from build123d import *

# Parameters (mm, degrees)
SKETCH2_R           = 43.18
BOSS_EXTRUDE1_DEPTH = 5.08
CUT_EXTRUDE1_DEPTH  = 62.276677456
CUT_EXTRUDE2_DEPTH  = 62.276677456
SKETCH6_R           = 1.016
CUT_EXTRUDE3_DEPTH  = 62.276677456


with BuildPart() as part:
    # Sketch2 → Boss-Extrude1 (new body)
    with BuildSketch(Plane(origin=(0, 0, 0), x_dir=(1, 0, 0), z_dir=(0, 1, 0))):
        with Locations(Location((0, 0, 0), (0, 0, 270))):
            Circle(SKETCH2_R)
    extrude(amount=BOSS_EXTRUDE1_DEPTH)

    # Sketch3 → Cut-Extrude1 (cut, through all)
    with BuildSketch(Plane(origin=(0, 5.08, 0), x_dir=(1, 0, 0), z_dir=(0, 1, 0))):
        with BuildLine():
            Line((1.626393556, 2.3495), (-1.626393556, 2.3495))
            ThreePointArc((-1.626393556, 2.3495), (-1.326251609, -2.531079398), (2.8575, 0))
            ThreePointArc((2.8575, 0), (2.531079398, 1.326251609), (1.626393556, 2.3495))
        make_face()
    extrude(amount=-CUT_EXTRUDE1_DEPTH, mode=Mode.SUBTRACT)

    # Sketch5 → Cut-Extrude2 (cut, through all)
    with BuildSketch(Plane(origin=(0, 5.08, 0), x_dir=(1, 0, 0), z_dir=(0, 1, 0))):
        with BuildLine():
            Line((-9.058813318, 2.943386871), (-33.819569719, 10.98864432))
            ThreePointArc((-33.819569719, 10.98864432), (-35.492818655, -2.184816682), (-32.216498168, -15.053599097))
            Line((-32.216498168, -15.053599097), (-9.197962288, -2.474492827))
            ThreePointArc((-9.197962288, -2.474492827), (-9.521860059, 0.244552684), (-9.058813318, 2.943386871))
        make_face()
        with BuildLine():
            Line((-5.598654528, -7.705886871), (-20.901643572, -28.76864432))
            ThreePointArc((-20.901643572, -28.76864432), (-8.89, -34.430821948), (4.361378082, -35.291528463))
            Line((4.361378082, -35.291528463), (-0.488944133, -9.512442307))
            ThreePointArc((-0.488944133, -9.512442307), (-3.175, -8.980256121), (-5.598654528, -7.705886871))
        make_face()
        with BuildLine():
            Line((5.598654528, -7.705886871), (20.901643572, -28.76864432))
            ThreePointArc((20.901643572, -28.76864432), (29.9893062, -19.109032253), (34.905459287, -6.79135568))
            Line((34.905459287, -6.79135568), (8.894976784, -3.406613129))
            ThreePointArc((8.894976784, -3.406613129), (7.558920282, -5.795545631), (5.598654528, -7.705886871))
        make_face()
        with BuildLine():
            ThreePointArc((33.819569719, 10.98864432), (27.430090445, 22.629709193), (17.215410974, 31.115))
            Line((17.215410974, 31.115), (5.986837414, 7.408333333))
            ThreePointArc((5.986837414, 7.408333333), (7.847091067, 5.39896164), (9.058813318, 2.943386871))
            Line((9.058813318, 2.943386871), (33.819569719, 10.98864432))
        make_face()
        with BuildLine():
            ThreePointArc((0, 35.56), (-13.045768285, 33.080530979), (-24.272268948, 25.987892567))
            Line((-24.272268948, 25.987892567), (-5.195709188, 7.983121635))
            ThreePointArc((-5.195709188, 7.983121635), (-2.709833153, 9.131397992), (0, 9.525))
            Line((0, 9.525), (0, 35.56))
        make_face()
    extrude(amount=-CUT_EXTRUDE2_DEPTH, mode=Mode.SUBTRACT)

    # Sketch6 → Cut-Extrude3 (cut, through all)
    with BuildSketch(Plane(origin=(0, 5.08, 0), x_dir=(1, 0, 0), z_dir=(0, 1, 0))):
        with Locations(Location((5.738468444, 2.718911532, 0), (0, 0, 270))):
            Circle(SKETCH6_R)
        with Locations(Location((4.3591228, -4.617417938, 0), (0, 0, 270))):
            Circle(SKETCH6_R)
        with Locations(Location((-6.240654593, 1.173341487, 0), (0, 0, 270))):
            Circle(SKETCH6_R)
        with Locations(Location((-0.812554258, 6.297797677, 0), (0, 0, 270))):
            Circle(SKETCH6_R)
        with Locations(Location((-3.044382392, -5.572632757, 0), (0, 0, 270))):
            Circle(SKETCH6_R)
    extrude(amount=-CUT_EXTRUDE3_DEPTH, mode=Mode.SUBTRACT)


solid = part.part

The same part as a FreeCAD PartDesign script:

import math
import FreeCAD as App
import Part
import Sketcher

V = App.Vector
Q = App.Units.Quantity

doc = App.newDocument("Part")
body = doc.addObject("PartDesign::Body", "Body")

# Sketch on XZ plane
sketch1 = doc.addObject("Sketcher::SketchObject", "Sketch")
body.addObject(sketch1)
sketch1.AttachmentSupport = (doc.XZ_Plane, [""])
sketch1.MapMode = "FlatFace"
sketch1.addGeometry(Part.Circle(V(0, 0, 0), V(0, 0, 1), 43), False)
sketch1.addConstraint(Sketcher.Constraint("Coincident", 0, 3, -1, 1))
sketch1.addConstraint(Sketcher.Constraint("Diameter", 0, Q("3.4 in")))
pad1 = doc.addObject("PartDesign::Pad", "Pad")
body.addObject(pad1)
pad1.Profile = sketch1
pad1.Length = Q("0.2 in")
pad1.Reversed = True

# Sketch on XZ plane
sketch2 = doc.addObject("Sketcher::SketchObject", "Sketch001")
body.addObject(sketch2)
sketch2.AttachmentSupport = (doc.XZ_Plane, [""])
sketch2.MapMode = "FlatFace"
sketch2.AttachmentOffset = App.Placement(V(0, 0, -0.2 * 25.4), App.Rotation())
sketch2.addGeometry(Part.LineSegment(V(1.6, -2.3, 0), V(-1.6, -2.3, 0)), False)
sketch2.addGeometry(Part.ArcOfCircle(Part.Circle(V(0, 0, 0), V(0, 0, 1), 2.9), math.radians(0), math.radians(235)), False)
sketch2.addGeometry(Part.ArcOfCircle(Part.Circle(V(0, 0, 0), V(0, 0, 1), 2.9), math.radians(-55), math.radians(0)), False)
sketch2.addConstraint(Sketcher.Constraint("Coincident", 0, 2, 1, 2))
sketch2.addConstraint(Sketcher.Constraint("Tangent", 1, 1, 2, 2))
sketch2.addConstraint(Sketcher.Constraint("Coincident", 2, 1, 0, 1))
sketch2.addConstraint(Sketcher.Constraint("Horizontal", 0))
sketch2.addConstraint(Sketcher.Constraint("Coincident", 1, 3, -1, 1))
sketch2.addConstraint(Sketcher.Constraint("Equal", 1, 2))
sketch2.addConstraint(Sketcher.Constraint("PointOnObject", 1, 1, -1))
sketch2.addConstraint(Sketcher.Constraint("Radius", 1, Q("0.1125 in")))
sketch2.addConstraint(Sketcher.Constraint("DistanceY", 0, 2, -1, 1, Q("0.0925 in")))
pocket1 = doc.addObject("PartDesign::Pocket", "Pocket")
body.addObject(pocket1)
pocket1.Profile = sketch2
pocket1.Type = "ThroughAll"
pocket1.Reversed = True

# Sketch on XZ plane
sketch3 = doc.addObject("Sketcher::SketchObject", "Sketch002")
body.addObject(sketch3)
sketch3.AttachmentSupport = (doc.XZ_Plane, [""])
sketch3.MapMode = "FlatFace"
sketch3.AttachmentOffset = App.Placement(V(0, 0, -0.2 * 25.4), App.Rotation())
sketch3.addGeometry(Part.LineSegment(V(-9, -3, 0), V(-34, -11, 0)), False)
sketch3.addGeometry(Part.ArcOfCircle(Part.Circle(V(0, 0, 0), V(0, 0, 1), 36), math.radians(155), math.radians(198)), False)
sketch3.addGeometry(Part.LineSegment(V(-32, 15, 0), V(-9, 2, 0)), False)
sketch3.addGeometry(Part.ArcOfCircle(Part.Circle(V(0, 0, 0), V(0, 0, 1), 10), math.radians(165), math.radians(198)), False)
sketch3.addGeometry(Part.LineSegment(V(-6, 8, 0), V(-21, 29, 0)), False)
sketch3.addGeometry(Part.ArcOfCircle(Part.Circle(V(0, 0, 0), V(0, 0, 1), 36), math.radians(83), math.radians(126)), False)
sketch3.addGeometry(Part.LineSegment(V(4, 35, 0), V(0, 10, 0)), False)
sketch3.addGeometry(Part.ArcOfCircle(Part.Circle(V(0, 0, 0), V(0, 0, 1), 10), math.radians(93), math.radians(126)), False)
sketch3.addGeometry(Part.LineSegment(V(6, 8, 0), V(21, 29, 0)), False)
sketch3.addGeometry(Part.ArcOfCircle(Part.Circle(V(0, 0, 0), V(0, 0, 1), 36), math.radians(11), math.radians(54)), False)
sketch3.addGeometry(Part.LineSegment(V(35, 7, 0), V(9, 3, 0)), False)
sketch3.addGeometry(Part.ArcOfCircle(Part.Circle(V(0, 0, 0), V(0, 0, 1), 10), math.radians(21), math.radians(54)), False)
sketch3.addGeometry(Part.ArcOfCircle(Part.Circle(V(0, 0, 0), V(0, 0, 1), 36), math.radians(-61), math.radians(-18)), False)
sketch3.addGeometry(Part.LineSegment(V(17, -31, 0), V(6, -7, 0)), False)
sketch3.addGeometry(Part.ArcOfCircle(Part.Circle(V(0, 0, 0), V(0, 0, 1), 10), math.radians(-51), math.radians(-18)), False)
sketch3.addGeometry(Part.LineSegment(V(9, -3, 0), V(34, -11, 0)), False)
sketch3.addGeometry(Part.ArcOfCircle(Part.Circle(V(0, 0, 0), V(0, 0, 1), 36), math.radians(-133), math.radians(-90)), False)
sketch3.addGeometry(Part.LineSegment(V(-24, -26, 0), V(-5, -8, 0)), False)
sketch3.addGeometry(Part.ArcOfCircle(Part.Circle(V(0, 0, 0), V(0, 0, 1), 10), math.radians(-123), math.radians(-90)), False)
sketch3.addGeometry(Part.LineSegment(V(0, -10, 0), V(0, -36, 0)), False)
sketch3.addConstraint(Sketcher.Constraint("Coincident", 0, 2, 1, 2))
sketch3.addConstraint(Sketcher.Constraint("Coincident", 1, 1, 2, 1))
sketch3.addConstraint(Sketcher.Constraint("Coincident", 2, 2, 3, 1))
sketch3.addConstraint(Sketcher.Constraint("Coincident", 3, 2, 0, 1))
sketch3.addConstraint(Sketcher.Constraint("Coincident", 4, 2, 5, 2))
sketch3.addConstraint(Sketcher.Constraint("Coincident", 5, 1, 6, 1))
sketch3.addConstraint(Sketcher.Constraint("Coincident", 6, 2, 7, 1))
sketch3.addConstraint(Sketcher.Constraint("Coincident", 7, 2, 4, 1))
sketch3.addConstraint(Sketcher.Constraint("Coincident", 8, 2, 9, 2))
sketch3.addConstraint(Sketcher.Constraint("Coincident", 9, 1, 10, 1))
sketch3.addConstraint(Sketcher.Constraint("Coincident", 10, 2, 11, 1))
sketch3.addConstraint(Sketcher.Constraint("Coincident", 11, 2, 8, 1))
sketch3.addConstraint(Sketcher.Constraint("Coincident", 12, 1, 13, 1))
sketch3.addConstraint(Sketcher.Constraint("Coincident", 13, 2, 14, 1))
sketch3.addConstraint(Sketcher.Constraint("Coincident", 14, 2, 15, 1))
sketch3.addConstraint(Sketcher.Constraint("Coincident", 15, 2, 12, 2))
sketch3.addConstraint(Sketcher.Constraint("Coincident", 16, 1, 17, 1))
sketch3.addConstraint(Sketcher.Constraint("Coincident", 17, 2, 18, 1))
sketch3.addConstraint(Sketcher.Constraint("Coincident", 18, 2, 19, 1))
sketch3.addConstraint(Sketcher.Constraint("Coincident", 19, 2, 16, 2))
sketch3.addConstraint(Sketcher.Constraint("Vertical", 19))
sketch3.addConstraint(Sketcher.Constraint("Coincident", 1, 3, -1, 1))
sketch3.addConstraint(Sketcher.Constraint("Coincident", 3, 3, -1, 1))
sketch3.addConstraint(Sketcher.Constraint("Coincident", 5, 3, -1, 1))
sketch3.addConstraint(Sketcher.Constraint("Coincident", 7, 3, -1, 1))
sketch3.addConstraint(Sketcher.Constraint("Coincident", 9, 3, -1, 1))
sketch3.addConstraint(Sketcher.Constraint("Coincident", 11, 3, -1, 1))
sketch3.addConstraint(Sketcher.Constraint("Coincident", 12, 3, -1, 1))
sketch3.addConstraint(Sketcher.Constraint("Coincident", 14, 3, -1, 1))
sketch3.addConstraint(Sketcher.Constraint("Coincident", 16, 3, -1, 1))
sketch3.addConstraint(Sketcher.Constraint("Coincident", 18, 3, -1, 1))
sketch3.addConstraint(Sketcher.Constraint("Equal", 1, 5))
sketch3.addConstraint(Sketcher.Constraint("Equal", 3, 7))
sketch3.addConstraint(Sketcher.Constraint("Equal", 5, 9))
sketch3.addConstraint(Sketcher.Constraint("Equal", 7, 11))
sketch3.addConstraint(Sketcher.Constraint("Equal", 9, 12))
sketch3.addConstraint(Sketcher.Constraint("Equal", 11, 14))
sketch3.addConstraint(Sketcher.Constraint("Equal", 12, 16))
sketch3.addConstraint(Sketcher.Constraint("Equal", 14, 18))
sketch3.addConstraint(Sketcher.Constraint("PointOnObject", 18, 2, -2))
sketch3.addConstraint(Sketcher.Constraint("Horizontal", 4, 2, 8, 2))
sketch3.addConstraint(Sketcher.Constraint("Horizontal", 7, 2, 11, 2))
sketch3.addConstraint(Sketcher.Constraint("Horizontal", 3, 2, 14, 2))
sketch3.addConstraint(Sketcher.Constraint("Horizontal", 0, 2, 15, 2))
sketch3.addConstraint(Sketcher.Constraint("Equal", 2, 6))
sketch3.addConstraint(Sketcher.Constraint("Equal", 6, 13))
sketch3.addConstraint(Sketcher.Constraint("Equal", 13, 17))
sketch3.addConstraint(Sketcher.Constraint("Radius", 1, Q("1.4 in")))
sketch3.addConstraint(Sketcher.Constraint("Angle", 0, Q("-162 deg")))
sketch3.addConstraint(Sketcher.Constraint("Angle", 4, Q("126 deg")))
sketch3.addConstraint(Sketcher.Constraint("Radius", 3, Q("0.375 in")))
sketch3.addConstraint(Sketcher.Constraint("DistanceY", 15, 2, 9, 1, Q("0.7 in")))
sketch3.addConstraint(Sketcher.Constraint("DistanceY", 14, 2, 10, 2, Q("0.25 in")))
sketch3.addConstraint(Sketcher.Constraint("DistanceY", 12, 1, -1, 1, Q("1.225 in")))
sketch3.addConstraint(Sketcher.Constraint("DistanceX", 1, 1, -1, 1, 32.216498))
sketch3.addConstraint(Sketcher.Constraint("DistanceX", 7, 2, 8, 2, 26.500298))
sketch3.addConstraint(Sketcher.Constraint("DistanceX", 6, 2, 11, 2, 6.087599))
sketch3.addConstraint(Sketcher.Constraint("DistanceX", 0, 2, 16, 1, 9.547301))
sketch3.addConstraint(Sketcher.Constraint("Distance", 2, 26.231411))
sketch3.addConstraint(Sketcher.Constraint("DistanceX", 0, 2, -1, 1, 33.81957))
pocket2 = doc.addObject("PartDesign::Pocket", "Pocket001")
body.addObject(pocket2)
pocket2.Profile = sketch3
pocket2.Type = "ThroughAll"
pocket2.Reversed = True

# Sketch on XZ plane
sketch4 = doc.addObject("Sketcher::SketchObject", "Sketch003")
body.addObject(sketch4)
sketch4.AttachmentSupport = (doc.XZ_Plane, [""])
sketch4.MapMode = "FlatFace"
sketch4.AttachmentOffset = App.Placement(V(0, 0, -0.2 * 25.4), App.Rotation())
sketch4.addGeometry(Part.Circle(V(5.7, -2.7, 0), V(0, 0, 1), 1), False)
sketch4.addGeometry(Part.Circle(V(4.4, 4.6, 0), V(0, 0, 1), 1), False)
sketch4.addGeometry(Part.Circle(V(-6.2, -1.2, 0), V(0, 0, 1), 1), False)
sketch4.addGeometry(Part.Circle(V(-0.8, -6.3, 0), V(0, 0, 1), 1), False)
sketch4.addGeometry(Part.Circle(V(-3, 5.6, 0), V(0, 0, 1), 1), False)
sketch4.addConstraint(Sketcher.Constraint("Equal", 0, 1))
sketch4.addConstraint(Sketcher.Constraint("Equal", 1, 2))
sketch4.addConstraint(Sketcher.Constraint("Equal", 2, 3))
sketch4.addConstraint(Sketcher.Constraint("Equal", 3, 4))
sketch4.addConstraint(Sketcher.Constraint("Diameter", 0, Q("0.08 in")))
sketch4.addConstraint(Sketcher.Constraint("DistanceX", 2, 3, 3, 3, 5.4281))
sketch4.addConstraint(Sketcher.Constraint("DistanceX", -1, 1, 0, 3, 5.738468))
sketch4.addConstraint(Sketcher.Constraint("DistanceY", 0, 3, -1, 1, 2.718912))
sketch4.addConstraint(Sketcher.Constraint("DistanceY", 2, 3, -1, 1, 1.173341))
sketch4.addConstraint(Sketcher.Constraint("DistanceY", 0, 3, 1, 3, 7.336329))
sketch4.addConstraint(Sketcher.Constraint("DistanceX", 4, 3, 0, 3, 8.782851))
sketch4.addConstraint(Sketcher.Constraint("DistanceX", 4, 3, 3, 3, 2.231828))
sketch4.addConstraint(Sketcher.Constraint("DistanceY", 3, 3, 4, 3, 11.87043))
sketch4.addConstraint(Sketcher.Constraint("DistanceX", -1, 1, 1, 3, 4.359123))
sketch4.addConstraint(Sketcher.Constraint("DistanceY", 3, 3, -1, 1, 6.297798))
pocket3 = doc.addObject("PartDesign::Pocket", "Pocket002")
body.addObject(pocket3)
pocket3.Profile = sketch4
pocket3.Type = "ThroughAll"
pocket3.Reversed = True

doc.recompute()
